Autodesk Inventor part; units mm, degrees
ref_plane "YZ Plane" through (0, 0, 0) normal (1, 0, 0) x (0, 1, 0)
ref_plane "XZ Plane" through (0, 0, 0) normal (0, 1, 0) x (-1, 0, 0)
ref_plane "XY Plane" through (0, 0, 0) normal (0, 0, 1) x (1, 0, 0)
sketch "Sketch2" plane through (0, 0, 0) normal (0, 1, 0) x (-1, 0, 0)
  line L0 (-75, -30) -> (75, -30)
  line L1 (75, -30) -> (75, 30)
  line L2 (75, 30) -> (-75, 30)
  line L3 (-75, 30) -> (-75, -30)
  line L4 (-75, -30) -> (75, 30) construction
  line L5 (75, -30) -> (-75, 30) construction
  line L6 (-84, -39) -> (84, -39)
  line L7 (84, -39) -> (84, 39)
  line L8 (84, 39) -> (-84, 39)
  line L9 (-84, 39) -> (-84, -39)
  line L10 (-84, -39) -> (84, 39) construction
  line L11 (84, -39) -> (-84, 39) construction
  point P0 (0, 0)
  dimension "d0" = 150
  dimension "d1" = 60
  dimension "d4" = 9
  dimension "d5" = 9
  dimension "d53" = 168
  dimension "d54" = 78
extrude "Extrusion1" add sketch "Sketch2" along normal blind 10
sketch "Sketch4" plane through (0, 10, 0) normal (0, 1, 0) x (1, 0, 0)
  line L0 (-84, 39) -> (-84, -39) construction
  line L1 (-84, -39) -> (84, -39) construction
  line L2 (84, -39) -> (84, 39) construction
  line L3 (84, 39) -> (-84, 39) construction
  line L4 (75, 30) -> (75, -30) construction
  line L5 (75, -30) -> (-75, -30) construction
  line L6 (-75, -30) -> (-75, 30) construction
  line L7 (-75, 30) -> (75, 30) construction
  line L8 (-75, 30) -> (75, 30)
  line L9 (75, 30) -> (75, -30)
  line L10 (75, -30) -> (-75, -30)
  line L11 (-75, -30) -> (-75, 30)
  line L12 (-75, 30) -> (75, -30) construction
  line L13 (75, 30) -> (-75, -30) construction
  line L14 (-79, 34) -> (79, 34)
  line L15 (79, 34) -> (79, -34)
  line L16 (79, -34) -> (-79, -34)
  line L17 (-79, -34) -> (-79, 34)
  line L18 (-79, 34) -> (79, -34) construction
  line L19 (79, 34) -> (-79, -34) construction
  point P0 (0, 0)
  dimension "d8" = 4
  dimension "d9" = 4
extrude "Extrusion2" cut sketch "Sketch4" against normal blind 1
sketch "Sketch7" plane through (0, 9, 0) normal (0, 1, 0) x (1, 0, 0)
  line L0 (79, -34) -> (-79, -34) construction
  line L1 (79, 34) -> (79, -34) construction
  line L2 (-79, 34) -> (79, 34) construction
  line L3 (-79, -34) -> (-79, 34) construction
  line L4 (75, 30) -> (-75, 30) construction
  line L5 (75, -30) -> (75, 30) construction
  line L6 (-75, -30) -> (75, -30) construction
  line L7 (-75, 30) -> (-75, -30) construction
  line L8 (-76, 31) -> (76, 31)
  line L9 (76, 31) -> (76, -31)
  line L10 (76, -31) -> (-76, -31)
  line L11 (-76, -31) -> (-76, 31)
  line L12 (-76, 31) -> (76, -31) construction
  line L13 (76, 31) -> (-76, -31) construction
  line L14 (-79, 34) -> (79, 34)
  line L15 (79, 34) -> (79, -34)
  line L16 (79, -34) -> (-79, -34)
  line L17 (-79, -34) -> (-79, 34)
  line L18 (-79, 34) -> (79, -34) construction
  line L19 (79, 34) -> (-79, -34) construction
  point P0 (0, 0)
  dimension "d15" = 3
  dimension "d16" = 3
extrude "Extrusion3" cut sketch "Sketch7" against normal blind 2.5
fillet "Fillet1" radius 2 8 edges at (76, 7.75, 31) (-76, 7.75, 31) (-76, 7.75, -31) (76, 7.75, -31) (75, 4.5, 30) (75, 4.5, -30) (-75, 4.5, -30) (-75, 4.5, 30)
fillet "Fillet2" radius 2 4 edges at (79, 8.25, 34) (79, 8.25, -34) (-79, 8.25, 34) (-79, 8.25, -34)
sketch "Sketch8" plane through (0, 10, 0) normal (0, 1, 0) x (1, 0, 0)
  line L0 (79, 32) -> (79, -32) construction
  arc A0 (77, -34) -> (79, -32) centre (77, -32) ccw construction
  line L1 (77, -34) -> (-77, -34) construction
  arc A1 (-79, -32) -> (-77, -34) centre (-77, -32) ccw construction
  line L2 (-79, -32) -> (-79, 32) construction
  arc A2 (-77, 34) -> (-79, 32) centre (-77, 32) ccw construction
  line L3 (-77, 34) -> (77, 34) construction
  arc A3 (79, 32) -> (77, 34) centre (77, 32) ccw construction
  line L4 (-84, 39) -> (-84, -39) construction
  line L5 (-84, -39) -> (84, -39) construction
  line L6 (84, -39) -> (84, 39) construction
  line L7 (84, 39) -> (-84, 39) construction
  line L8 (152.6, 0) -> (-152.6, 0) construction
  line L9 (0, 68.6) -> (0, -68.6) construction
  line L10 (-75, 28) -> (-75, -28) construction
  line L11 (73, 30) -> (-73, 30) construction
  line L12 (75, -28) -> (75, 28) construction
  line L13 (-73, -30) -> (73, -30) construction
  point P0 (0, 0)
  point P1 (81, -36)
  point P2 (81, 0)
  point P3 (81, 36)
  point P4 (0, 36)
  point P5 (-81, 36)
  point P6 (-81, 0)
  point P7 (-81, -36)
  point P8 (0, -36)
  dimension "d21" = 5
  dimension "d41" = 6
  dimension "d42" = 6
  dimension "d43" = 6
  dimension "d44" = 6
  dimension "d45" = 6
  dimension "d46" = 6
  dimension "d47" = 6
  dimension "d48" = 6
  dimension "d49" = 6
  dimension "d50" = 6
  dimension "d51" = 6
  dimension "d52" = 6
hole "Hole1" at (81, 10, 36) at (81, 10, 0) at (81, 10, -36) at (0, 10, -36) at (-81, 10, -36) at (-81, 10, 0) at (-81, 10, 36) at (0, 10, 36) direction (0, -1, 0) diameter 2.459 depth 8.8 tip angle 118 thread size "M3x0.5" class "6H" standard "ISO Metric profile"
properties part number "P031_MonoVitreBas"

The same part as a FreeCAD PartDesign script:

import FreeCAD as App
import Part
import Sketcher
Q = App.Units.Quantity


def edges_at(feature, points):
    """Names of the edges that pass closest to the given points."""
    edges = feature.Shape.Edges
    near = lambda p: min(range(len(edges)), key=lambda i: edges[i].distToShape(Part.Vertex(*p))[0])
    return sorted({f"Edge{near(p) + 1}" for p in points})


def add_polygon(sketch, points):
    """Adds a closed chain of lines whose ends are joined by coincident constraints."""
    first, n = sketch.GeometryCount, len(points)
    for a, b in zip(points, points[1:] + points[:1]):
        sketch.addGeometry(Part.LineSegment(App.Vector(*a, 0), App.Vector(*b, 0)), False)
    for i in range(n):
        sketch.addConstraint(Sketcher.Constraint("Coincident", first + i, 2, first + (i + 1) % n, 1))

doc = App.newDocument("Part")
params = doc.addObject("Spreadsheet::Sheet", "Params")
for row, (alias, value) in enumerate([
    ("sketch1_width", "168 mm"),
    ("sketch1_width2", "150 mm"),
    ("sketch1_height", "78 mm"),
    ("sketch1_height2", "60 mm"),
    ("pad1_length", "10 mm"),
    ("sketch2_width", "158 mm"),
    ("sketch2_height", "68 mm"),
    ("pocket1_length", "1 mm"),
    ("sketch3_width", "158 mm"),
    ("sketch3_height", "68 mm"),
    ("pocket2_length", "2.5 mm"),
    ("fillet_radius", "2 mm"),
    ("fillet2_radius", "2 mm"),
    ("hole_diameter", "2.459 mm"),
    ("hole_depth", "8.8 mm"),
], start=1):
    params.set(f"A{row}", alias)
    params.set(f"B{row}", "=" + value)
    params.setAlias(f"B{row}", alias)

body = doc.addObject("PartDesign::Body", "Body")

# Sketch on XZ plane
sketch1 = body.newObject("Sketcher::SketchObject", "Sketch")
sketch1.AttachmentSupport = (doc.getObject("XZ_Plane"), [""])
sketch1.MapMode = "FlatFace"
add_polygon(sketch1, [(84, 39), (84, -39), (-84, -39), (-84, 39)])  # lines 0-3
add_polygon(sketch1, [(-75, -30), (75, -30), (75, 30), (-75, 30)])  # lines 4-7
sketch1.addConstraint(Sketcher.Constraint("Vertical", 0))
sketch1.addConstraint(Sketcher.Constraint("Horizontal", 1))
sketch1.addConstraint(Sketcher.Constraint("Vertical", 2))
sketch1.addConstraint(Sketcher.Constraint("Horizontal", 3))
sketch1.addConstraint(Sketcher.Constraint("Horizontal", 4))
sketch1.addConstraint(Sketcher.Constraint("Vertical", 5))
sketch1.addConstraint(Sketcher.Constraint("Horizontal", 6))
sketch1.addConstraint(Sketcher.Constraint("Vertical", 7))
sketch1.addConstraint(Sketcher.Constraint("Symmetric", 0, 2, 2, 2, -1, 1))
sketch1.addConstraint(Sketcher.Constraint("Symmetric", 4, 2, 6, 2, -1, 1))
sketch1.addConstraint(Sketcher.Constraint("DistanceX", 1, 2, 1, 1, Q("168 mm")))
sketch1.addConstraint(Sketcher.Constraint("DistanceX", 4, 1, 4, 2, Q("150 mm")))
sketch1.addConstraint(Sketcher.Constraint("DistanceY", 0, 2, 0, 1, Q("78 mm")))
sketch1.addConstraint(Sketcher.Constraint("DistanceY", 5, 1, 5, 2, Q("60 mm")))
sketch1.setExpression("Constraints[18]", "Params.sketch1_width")
sketch1.setExpression("Constraints[19]", "Params.sketch1_width2")
sketch1.setExpression("Constraints[20]", "Params.sketch1_height")
sketch1.setExpression("Constraints[21]", "Params.sketch1_height2")
pad1 = body.newObject("PartDesign::Pad", "Pad")
pad1.Profile = sketch1
pad1.setExpression("Length", "Params.pad1_length")
pad1.Reversed = True

# Sketch on XZ plane
sketch2 = body.newObject("Sketcher::SketchObject", "Sketch001")
sketch2.AttachmentSupport = (doc.getObject("XZ_Plane"), [""])
sketch2.MapMode = "FlatFace"
sketch2.AttachmentOffset = App.Placement(App.Vector(0, 0, -10), App.Rotation())
add_polygon(sketch2, [(79, -34), (-79, -34), (-79, 34), (79, 34)])  # lines 0-3
add_polygon(sketch2, [(-75, 30), (-75, -30), (75, -30), (75, 30)])  # lines 4-7
sketch2.addConstraint(Sketcher.Constraint("Horizontal", 0))
sketch2.addConstraint(Sketcher.Constraint("Vertical", 1))
sketch2.addConstraint(Sketcher.Constraint("Horizontal", 2))
sketch2.addConstraint(Sketcher.Constraint("Vertical", 3))
sketch2.addConstraint(Sketcher.Constraint("Vertical", 4))
sketch2.addConstraint(Sketcher.Constraint("Horizontal", 5))
sketch2.addConstraint(Sketcher.Constraint("Vertical", 6))
sketch2.addConstraint(Sketcher.Constraint("Horizontal", 7))
sketch2.addConstraint(Sketcher.Constraint("Symmetric", 0, 2, 2, 2, -1, 1))
sketch2.addConstraint(Sketcher.Constraint("Symmetric", 4, 2, 6, 2, -1, 1))
sketch2.addConstraint(Sketcher.Constraint("DistanceX", 0, 2, 4, 2, Q("4 mm")))
sketch2.addConstraint(Sketcher.Constraint("DistanceY", 0, 2, 4, 2, Q("4 mm")))
sketch2.addConstraint(Sketcher.Constraint("DistanceX", 0, 2, 0, 1, Q("158 mm")))
sketch2.addConstraint(Sketcher.Constraint("DistanceY", 1, 1, 1, 2, Q("68 mm")))
sketch2.setExpression("Constraints[20]", "Params.sketch2_width")
sketch2.setExpression("Constraints[21]", "Params.sketch2_height")
pocket1 = body.newObject("PartDesign::Pocket", "Pocket")
pocket1.Profile = sketch2
pocket1.setExpression("Length", "Params.pocket1_length")
pocket1.Reversed = True

# Sketch on XZ plane
sketch3 = body.newObject("Sketcher::SketchObject", "Sketch002")
sketch3.AttachmentSupport = (doc.getObject("XZ_Plane"), [""])
sketch3.MapMode = "FlatFace"
sketch3.AttachmentOffset = App.Placement(App.Vector(0, 0, -9), App.Rotation())
add_polygon(sketch3, [(79, -34), (-79, -34), (-79, 34), (79, 34)])  # lines 0-3
add_polygon(sketch3, [(-76, 31), (-76, -31), (76, -31), (76, 31)])  # lines 4-7
sketch3.addConstraint(Sketcher.Constraint("Horizontal", 0))
sketch3.addConstraint(Sketcher.Constraint("Vertical", 1))
sketch3.addConstraint(Sketcher.Constraint("Horizontal", 2))
sketch3.addConstraint(Sketcher.Constraint("Vertical", 3))
sketch3.addConstraint(Sketcher.Constraint("Vertical", 4))
sketch3.addConstraint(Sketcher.Constraint("Horizontal", 5))
sketch3.addConstraint(Sketcher.Constraint("Vertical", 6))
sketch3.addConstraint(Sketcher.Constraint("Horizontal", 7))
sketch3.addConstraint(Sketcher.Constraint("Symmetric", 0, 2, 2, 2, -1, 1))
sketch3.addConstraint(Sketcher.Constraint("Symmetric", 4, 2, 6, 2, -1, 1))
sketch3.addConstraint(Sketcher.Constraint("DistanceX", 0, 2, 4, 2, Q("3 mm")))
sketch3.addConstraint(Sketcher.Constraint("DistanceY", 0, 2, 4, 2, Q("3 mm")))
sketch3.addConstraint(Sketcher.Constraint("DistanceX", 0, 2, 0, 1, Q("158 mm")))
sketch3.addConstraint(Sketcher.Constraint("DistanceY", 1, 1, 1, 2, Q("68 mm")))
sketch3.setExpression("Constraints[20]", "Params.sketch3_width")
sketch3.setExpression("Constraints[21]", "Params.sketch3_height")
pocket2 = body.newObject("PartDesign::Pocket", "Pocket001")
pocket2.Profile = sketch3
pocket2.setExpression("Length", "Params.pocket2_length")
pocket2.Reversed = True
doc.recompute()

fillet = body.newObject("PartDesign::Fillet", "Fillet")
fillet.Base = (pocket2, edges_at(pocket2, [
    (76, 7.75, 31),
    (-76, 7.75, 31),
    (-76, 7.75, -31),
    (76, 7.75, -31),
    (75, 4.5, 30),
    (75, 4.5, -30),
    (-75, 4.5, -30),
    (-75, 4.5, 30),
]))
fillet.setExpression("Radius", "Params.fillet_radius")
doc.recompute()

fillet2 = body.newObject("PartDesign::Fillet", "Fillet001")
fillet2.Base = (fillet, edges_at(fillet, [
    (79, 8.25, 34),
    (79, 8.25, -34),
    (-79, 8.25, 34),
    (-79, 8.25, -34),
]))
fillet2.setExpression("Radius", "Params.fillet2_radius")

# Sketch on XZ plane
sketch4 = body.newObject("Sketcher::SketchObject", "Sketch003")
sketch4.AttachmentSupport = (doc.getObject("XZ_Plane"), [""])
sketch4.MapMode = "FlatFace"
sketch4.AttachmentOffset = App.Placement(App.Vector(0, 0, -10), App.Rotation())
sketch4.addGeometry(Part.Circle(App.Vector(81, 36, 0), App.Vector(0, 0, 1), 1.2), False)
sketch4.addGeometry(Part.Circle(App.Vector(81, 0, 0), App.Vector(0, 0, 1), 1.2), False)
sketch4.addGeometry(Part.Circle(App.Vector(81, -36, 0), App.Vector(0, 0, 1), 1.2), False)
sketch4.addGeometry(Part.Circle(App.Vector(0, -36, 0), App.Vector(0, 0, 1), 1.2), False)
sketch4.addGeometry(Part.Circle(App.Vector(-81, -36, 0), App.Vector(0, 0, 1), 1.2), False)
sketch4.addGeometry(Part.Circle(App.Vector(-81, 0, 0), App.Vector(0, 0, 1), 1.2), False)
sketch4.addGeometry(Part.Circle(App.Vector(-81, 36, 0), App.Vector(0, 0, 1), 1.2), False)
sketch4.addGeometry(Part.Circle(App.Vector(0, 36, 0), App.Vector(0, 0, 1), 1.2), False)
sketch4.addConstraint(Sketcher.Constraint("Equal", 0, 1))
sketch4.addConstraint(Sketcher.Constraint("Equal", 1, 2))
sketch4.addConstraint(Sketcher.Constraint("Equal", 2, 3))
sketch4.addConstraint(Sketcher.Constraint("Equal", 3, 4))
sketch4.addConstraint(Sketcher.Constraint("Equal", 4, 5))
sketch4.addConstraint(Sketcher.Constraint("Equal", 5, 6))
sketch4.addConstraint(Sketcher.Constraint("Equal", 6, 7))
sketch4.addConstraint(Sketcher.Constraint("Symmetric", 0, 3, 4, 3, -1, 1))
sketch4.addConstraint(Sketcher.Constraint("Symmetric", 1, 3, 5, 3, -1, 1))
sketch4.addConstraint(Sketcher.Constraint("Symmetric", 2, 3, 6, 3, -1, 1))
sketch4.addConstraint(Sketcher.Constraint("Symmetric", 3, 3, 7, 3, -1, 1))
sketch4.addConstraint(Sketcher.Constraint("Symmetric", 2, 3, 4, 3, -2))
sketch4.addConstraint(Sketcher.Constraint("PointOnObject", 1, 3, -1))
sketch4.addConstraint(Sketcher.Constraint("PointOnObject", 3, 3, -2))
sketch4.addConstraint(Sketcher.Constraint("Horizontal", 2, 3, 3, 3))
sketch4.addConstraint(Sketcher.Constraint("Vertical", 0, 3, 1, 3))
sketch4.addConstraint(Sketcher.Constraint("Diameter", 0, Q("2.459 mm")))
sketch4.addConstraint(Sketcher.Constraint("DistanceX", -1, 1, 0, 3, Q("81 mm")))
sketch4.addConstraint(Sketcher.Constraint("DistanceY", -1, 1, 0, 3, Q("36 mm")))
doc.recompute()
hole = body.newObject("PartDesign::Hole", "Hole")
hole.Profile = sketch4
hole.ThreadType = "None"
hole.setExpression("Diameter", "Params.hole_diameter")
hole.DepthType = "Dimension"
hole.setExpression("Depth", "Params.hole_depth")
hole.DrillPoint = "Angled"
hole.DrillPointAngle = 118
hole.Reversed = True

doc.recompute()
